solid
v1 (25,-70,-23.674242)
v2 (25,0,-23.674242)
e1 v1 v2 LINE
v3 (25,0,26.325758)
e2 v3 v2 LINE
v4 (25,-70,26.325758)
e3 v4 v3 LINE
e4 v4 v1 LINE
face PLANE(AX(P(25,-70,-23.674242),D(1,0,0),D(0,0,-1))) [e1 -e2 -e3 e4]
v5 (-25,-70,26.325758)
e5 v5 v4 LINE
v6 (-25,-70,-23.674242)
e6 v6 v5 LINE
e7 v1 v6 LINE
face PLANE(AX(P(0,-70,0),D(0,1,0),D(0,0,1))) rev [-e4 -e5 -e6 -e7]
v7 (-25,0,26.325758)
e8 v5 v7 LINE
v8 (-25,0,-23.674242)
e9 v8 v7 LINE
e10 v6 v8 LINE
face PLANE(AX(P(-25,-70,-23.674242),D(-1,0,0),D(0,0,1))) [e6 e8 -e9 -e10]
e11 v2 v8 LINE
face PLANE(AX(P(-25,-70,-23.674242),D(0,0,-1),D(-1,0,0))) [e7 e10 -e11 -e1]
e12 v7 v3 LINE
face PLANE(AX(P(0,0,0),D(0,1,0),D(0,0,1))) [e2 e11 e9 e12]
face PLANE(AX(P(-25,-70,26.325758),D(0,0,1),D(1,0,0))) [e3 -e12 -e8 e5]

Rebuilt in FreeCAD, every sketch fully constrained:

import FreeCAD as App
import Part
import Sketcher
Q = App.Units.Quantity


def add_polygon(sketch, points):
    """Adds a closed chain of lines whose ends are joined by coincident constraints."""
    first, n = sketch.GeometryCount, len(points)
    for a, b in zip(points, points[1:] + points[:1]):
        sketch.addGeometry(Part.LineSegment(App.Vector(*a, 0), App.Vector(*b, 0)), False)
    for i in range(n):
        sketch.addConstraint(Sketcher.Constraint("Coincident", first + i, 2, first + (i + 1) % n, 1))

doc = App.newDocument("Part")
body = doc.addObject("PartDesign::Body", "Body")

# Sketch on XZ plane
sketch1 = doc.addObject("Sketcher::SketchObject", "Sketch")
body.addObject(sketch1)
sketch1.AttachmentSupport = (doc.XZ_Plane, [""])
sketch1.MapMode = "FlatFace"
add_polygon(sketch1, [(-25, -24), (-25, 26), (25, 26), (25, -24)])  # lines 0-3
sketch1.addConstraint(Sketcher.Constraint("Vertical", 0))
sketch1.addConstraint(Sketcher.Constraint("Horizontal", 1))
sketch1.addConstraint(Sketcher.Constraint("Vertical", 2))
sketch1.addConstraint(Sketcher.Constraint("Horizontal", 3))
sketch1.addConstraint(Sketcher.Constraint("Equal", 3, 0))
sketch1.addConstraint(Sketcher.Constraint("DistanceX", 1, 1, 1, 2, Q("50 mm")))
sketch1.addConstraint(Sketcher.Constraint("DistanceX", 0, 2, -1, 1, Q("25 mm")))
sketch1.addConstraint(Sketcher.Constraint("DistanceY", -1, 1, 0, 2, Q("26.325758 mm")))
pad1 = doc.addObject("PartDesign::Pad", "Pad")
body.addObject(pad1)
pad1.Profile = sketch1
pad1.Length = 70

doc.recompute()
